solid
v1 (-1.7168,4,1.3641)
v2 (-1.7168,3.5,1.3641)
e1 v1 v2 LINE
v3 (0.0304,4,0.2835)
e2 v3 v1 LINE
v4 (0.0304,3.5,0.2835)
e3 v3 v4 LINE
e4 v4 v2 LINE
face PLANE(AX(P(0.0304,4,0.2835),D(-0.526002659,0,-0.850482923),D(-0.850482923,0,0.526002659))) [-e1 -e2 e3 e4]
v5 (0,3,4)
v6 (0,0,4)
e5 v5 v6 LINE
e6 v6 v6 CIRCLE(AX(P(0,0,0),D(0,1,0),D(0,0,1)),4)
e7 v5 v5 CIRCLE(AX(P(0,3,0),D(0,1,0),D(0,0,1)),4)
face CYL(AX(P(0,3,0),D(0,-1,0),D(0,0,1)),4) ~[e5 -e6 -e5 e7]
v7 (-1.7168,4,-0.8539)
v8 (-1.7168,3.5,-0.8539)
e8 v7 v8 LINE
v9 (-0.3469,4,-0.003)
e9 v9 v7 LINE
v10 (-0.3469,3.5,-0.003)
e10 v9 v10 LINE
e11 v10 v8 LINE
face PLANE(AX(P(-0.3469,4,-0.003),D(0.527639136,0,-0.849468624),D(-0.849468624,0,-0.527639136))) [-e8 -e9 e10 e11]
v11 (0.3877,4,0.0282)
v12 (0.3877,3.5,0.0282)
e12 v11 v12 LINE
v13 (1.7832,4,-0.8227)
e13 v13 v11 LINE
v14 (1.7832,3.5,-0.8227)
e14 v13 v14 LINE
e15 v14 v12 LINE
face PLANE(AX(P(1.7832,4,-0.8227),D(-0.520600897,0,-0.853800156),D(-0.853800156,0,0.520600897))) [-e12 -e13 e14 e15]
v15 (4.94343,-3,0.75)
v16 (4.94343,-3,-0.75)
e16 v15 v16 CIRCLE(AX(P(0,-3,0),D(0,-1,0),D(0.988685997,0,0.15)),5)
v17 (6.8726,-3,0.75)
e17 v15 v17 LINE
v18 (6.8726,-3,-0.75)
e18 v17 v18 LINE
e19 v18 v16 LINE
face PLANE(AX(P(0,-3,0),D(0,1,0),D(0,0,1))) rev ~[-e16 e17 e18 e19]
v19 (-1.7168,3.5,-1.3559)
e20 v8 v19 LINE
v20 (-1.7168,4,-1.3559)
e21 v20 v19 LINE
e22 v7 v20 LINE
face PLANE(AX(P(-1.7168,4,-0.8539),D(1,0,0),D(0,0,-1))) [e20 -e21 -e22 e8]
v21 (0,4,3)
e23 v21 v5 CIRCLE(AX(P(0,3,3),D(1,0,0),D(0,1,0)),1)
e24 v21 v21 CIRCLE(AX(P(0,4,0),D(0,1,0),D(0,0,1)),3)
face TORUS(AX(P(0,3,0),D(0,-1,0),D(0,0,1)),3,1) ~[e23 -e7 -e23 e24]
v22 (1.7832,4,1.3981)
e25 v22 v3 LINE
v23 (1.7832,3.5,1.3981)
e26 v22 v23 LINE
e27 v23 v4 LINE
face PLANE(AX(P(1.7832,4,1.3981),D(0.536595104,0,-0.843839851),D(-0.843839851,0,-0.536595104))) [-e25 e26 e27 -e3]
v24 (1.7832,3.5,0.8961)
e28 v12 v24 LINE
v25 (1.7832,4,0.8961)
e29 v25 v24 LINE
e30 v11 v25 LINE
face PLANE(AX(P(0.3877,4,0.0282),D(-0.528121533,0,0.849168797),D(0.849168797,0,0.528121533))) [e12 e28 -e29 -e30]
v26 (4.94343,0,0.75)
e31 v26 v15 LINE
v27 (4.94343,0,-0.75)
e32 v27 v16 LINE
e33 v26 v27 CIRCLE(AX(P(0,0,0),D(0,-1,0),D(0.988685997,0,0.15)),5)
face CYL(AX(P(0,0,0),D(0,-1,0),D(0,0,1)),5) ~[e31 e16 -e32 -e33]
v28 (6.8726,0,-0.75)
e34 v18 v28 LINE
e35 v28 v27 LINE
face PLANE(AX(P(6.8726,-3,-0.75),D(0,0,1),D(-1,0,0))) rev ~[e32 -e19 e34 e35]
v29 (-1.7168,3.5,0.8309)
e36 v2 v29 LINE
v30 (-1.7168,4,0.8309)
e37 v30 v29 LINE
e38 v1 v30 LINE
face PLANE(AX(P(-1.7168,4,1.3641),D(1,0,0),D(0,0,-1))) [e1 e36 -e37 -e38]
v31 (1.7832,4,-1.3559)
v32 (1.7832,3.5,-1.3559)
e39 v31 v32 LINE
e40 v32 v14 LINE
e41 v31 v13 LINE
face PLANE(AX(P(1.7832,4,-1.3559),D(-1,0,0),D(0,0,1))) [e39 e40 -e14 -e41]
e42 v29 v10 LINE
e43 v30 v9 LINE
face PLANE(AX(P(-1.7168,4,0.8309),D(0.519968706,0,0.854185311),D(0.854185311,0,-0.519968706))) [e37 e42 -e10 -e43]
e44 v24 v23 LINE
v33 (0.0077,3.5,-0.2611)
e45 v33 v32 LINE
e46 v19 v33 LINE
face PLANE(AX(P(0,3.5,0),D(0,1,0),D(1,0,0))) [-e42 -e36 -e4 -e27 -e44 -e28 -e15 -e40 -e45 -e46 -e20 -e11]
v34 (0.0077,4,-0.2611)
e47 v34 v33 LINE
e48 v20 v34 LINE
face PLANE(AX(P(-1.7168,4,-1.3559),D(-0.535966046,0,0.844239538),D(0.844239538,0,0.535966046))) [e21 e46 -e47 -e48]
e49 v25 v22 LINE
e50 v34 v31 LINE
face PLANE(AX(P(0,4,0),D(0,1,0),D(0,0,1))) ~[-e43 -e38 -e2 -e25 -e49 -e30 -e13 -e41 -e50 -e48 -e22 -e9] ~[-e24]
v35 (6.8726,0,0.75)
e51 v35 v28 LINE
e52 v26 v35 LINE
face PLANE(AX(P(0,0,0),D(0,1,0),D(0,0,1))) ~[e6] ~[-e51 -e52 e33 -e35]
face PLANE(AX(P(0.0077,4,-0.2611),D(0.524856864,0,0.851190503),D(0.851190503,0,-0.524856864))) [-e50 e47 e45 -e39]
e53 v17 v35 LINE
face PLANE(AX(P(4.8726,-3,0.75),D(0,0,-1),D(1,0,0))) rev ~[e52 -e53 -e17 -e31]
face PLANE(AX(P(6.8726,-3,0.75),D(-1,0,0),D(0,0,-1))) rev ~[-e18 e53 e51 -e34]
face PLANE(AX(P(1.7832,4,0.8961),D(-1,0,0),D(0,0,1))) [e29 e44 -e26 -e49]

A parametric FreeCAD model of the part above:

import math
import FreeCAD as App
import Part
import Sketcher
Q = App.Units.Quantity


def add_polygon(sketch, points):
    """Adds a closed chain of lines whose ends are joined by coincident constraints."""
    first, n = sketch.GeometryCount, len(points)
    for a, b in zip(points, points[1:] + points[:1]):
        sketch.addGeometry(Part.LineSegment(App.Vector(*a, 0), App.Vector(*b, 0)), False)
    for i in range(n):
        sketch.addConstraint(Sketcher.Constraint("Coincident", first + i, 2, first + (i + 1) % n, 1))

doc = App.newDocument("Part")
params = doc.addObject("Spreadsheet::Sheet", "Params")
for row, (alias, value) in enumerate([
    ("sketch1_radius", "1 mm"),
    ("sketch1_width", "3 mm"),
    ("sketch1_height", "1 mm"),
    ("revolution_angle", "360 deg"),
    ("pocket1_length", "0.5 mm"),
    ("sketch3_width", "2 mm"),
    ("sketch3_height", "1.5 mm"),
    ("pad1_length", "3 mm"),
], start=1):
    params.set(f"A{row}", alias)
    params.set(f"B{row}", "=" + value)
    params.setAlias(f"B{row}", alias)

body = doc.addObject("PartDesign::Body", "Body")

# Sketch on YZ plane
sketch1 = doc.addObject("Sketcher::SketchObject", "Sketch")
body.addObject(sketch1)
sketch1.AttachmentSupport = (doc.YZ_Plane, [""])
sketch1.MapMode = "FlatFace"
sketch1.addGeometry([
    Part.LineSegment(App.Vector(-3, 0, 0), App.Vector(4, 0, 0)),  # 0
    Part.LineSegment(App.Vector(4, 0, 0), App.Vector(4, 3, 0)),  # 1
    Part.ArcOfCircle(Part.Circle(App.Vector(3, 3, 0), App.Vector(0, 0, 1), 1), math.radians(0), math.radians(90)),  # 2
    Part.LineSegment(App.Vector(3, 4, 0), App.Vector(0, 4, 0)),  # 3
    Part.LineSegment(App.Vector(0, 4, 0), App.Vector(0, 5, 0)),  # 4
    Part.LineSegment(App.Vector(0, 5, 0), App.Vector(-3, 5, 0)),  # 5
    Part.LineSegment(App.Vector(-3, 5, 0), App.Vector(-3, 0, 0)),  # 6
], False)
sketch1.addConstraint([
    Sketcher.Constraint("Coincident", 0, 2, 1, 1),
    Sketcher.Constraint("Tangent", 1, 2, 2, 1),
    Sketcher.Constraint("Tangent", 2, 2, 3, 1),
    Sketcher.Constraint("Coincident", 3, 2, 4, 1),
    Sketcher.Constraint("Coincident", 4, 2, 5, 1),
    Sketcher.Constraint("Coincident", 5, 2, 6, 1),
    Sketcher.Constraint("Coincident", 6, 2, 0, 1),
    Sketcher.Constraint("Horizontal", 0),
    Sketcher.Constraint("Vertical", 1),
    Sketcher.Constraint("Horizontal", 3),
    Sketcher.Constraint("Vertical", 4),
    Sketcher.Constraint("Horizontal", 5),
    Sketcher.Constraint("Vertical", 6),
    Sketcher.Constraint("PointOnObject", 0, 2, -1),
    Sketcher.Constraint("PointOnObject", 3, 2, -2),
    Sketcher.Constraint("Equal", 3, 5),
    Sketcher.Constraint("Equal", 5, 1),
    Sketcher.Constraint("Radius", 2, 1.0),
    Sketcher.Constraint("DistanceX", 3, 2, 3, 1, 3.0),
    Sketcher.Constraint("DistanceY", 4, 1, 4, 2, 1.0),
])
sketch1.setExpression("Constraints[17]", "Params.sketch1_radius")
sketch1.setExpression("Constraints[18]", "Params.sketch1_width")
sketch1.setExpression("Constraints[19]", "Params.sketch1_height")
revolution = doc.addObject("PartDesign::Revolution", "Revolution")
body.addObject(revolution)
revolution.Profile = sketch1
revolution.ReferenceAxis = (sketch1, ["H_Axis"])
revolution.setExpression("Angle", "Params.revolution_angle")

# Sketch on XZ plane
sketch2 = doc.addObject("Sketcher::SketchObject", "Sketch001")
body.addObject(sketch2)
sketch2.AttachmentSupport = (doc.XZ_Plane, [""])
sketch2.MapMode = "FlatFace"
sketch2.AttachmentOffset = App.Placement(App.Vector(0, 0, -4), App.Rotation())
add_polygon(sketch2, [(1.7832, -0.8227), (1.7832, -1.3559), (0.0077, -0.2611), (-1.7168, -1.3559), (-1.7168, -0.8539), (-0.3469, -0.003), (-1.7168, 0.8309), (-1.7168, 1.3641), (0.0304, 0.2835), (1.7832, 1.3981), (1.7832, 0.8961), (0.3877, 0.0282)])  # lines 0-11
sketch2.addConstraint([
    Sketcher.Constraint("Vertical", 0),
    Sketcher.Constraint("Vertical", 3),
    Sketcher.Constraint("Vertical", 6),
    Sketcher.Constraint("Vertical", 9),
    Sketcher.Constraint("Horizontal", 0, 2, 2, 2),
    Sketcher.Constraint("Vertical", 3, 2, 5, 2),
    Sketcher.Constraint("Vertical", 0, 2, 8, 2),
    Sketcher.Constraint("Equal", 0, 6),
    Sketcher.Constraint("Equal", 3, 9),
    Sketcher.Constraint("Angle", 2, Q("-147.5905 deg")),
    Sketcher.Constraint("Angle", 5, Q("148.6698 deg")),
    Sketcher.Constraint("DistanceX", 2, 2, 0, 2, 3.5),
    Sketcher.Constraint("DistanceY", 3, 1, 3, 2, 0.502),
    Sketcher.Constraint("DistanceX", 3, 2, 4, 2, 1.37),
    Sketcher.Constraint("DistanceY", 2, 2, 6, 2, 2.72),
    Sketcher.Constraint("DistanceX", 1, 2, 10, 2, 0.38),
    Sketcher.Constraint("DistanceY", 10, 2, 8, 2, 1.37),
    Sketcher.Constraint("Distance", 1, 2.086),
    Sketcher.Constraint("DistanceY", 0, 2, 0, 1, 0.5332),
    Sketcher.Constraint("DistanceY", 0, 2, -1, 1, 1.356),
    Sketcher.Constraint("DistanceX", 4, 2, -1, 1, 0.347),
    Sketcher.Constraint("DistanceY", -1, 1, 8, 2, 1.398),
    Sketcher.Constraint("Distance", 7, 2.0544),
    Sketcher.Constraint("Distance", 8, 2.0772),
])
pocket1 = doc.addObject("PartDesign::Pocket", "Pocket")
body.addObject(pocket1)
pocket1.Profile = sketch2
pocket1.setExpression("Length", "Params.pocket1_length")
pocket1.Reversed = True

# Sketch on XZ plane
sketch3 = doc.addObject("Sketcher::SketchObject", "Sketch002")
body.addObject(sketch3)
sketch3.AttachmentSupport = (doc.XZ_Plane, [""])
sketch3.MapMode = "FlatFace"
sketch3.AttachmentOffset = App.Placement(App.Vector(0, 0, 3), App.Rotation())
add_polygon(sketch3, [(6.8726, 0.75), (4.8726, 0.75), (4.8726, -0.75), (6.8726, -0.75)])  # lines 0-3
sketch3.addConstraint([
    Sketcher.Constraint("Horizontal", 0),
    Sketcher.Constraint("Vertical", 1),
    Sketcher.Constraint("Horizontal", 2),
    Sketcher.Constraint("Vertical", 3),
    Sketcher.Constraint("DistanceX", 0, 2, 0, 1, 2.0),
    Sketcher.Constraint("DistanceY", 1, 2, 1, 1, 1.5),
    Sketcher.Constraint("DistanceY", -1, 1, 0, 2, 0.75),
    Sketcher.Constraint("DistanceX", -1, 1, 0, 2, 4.8726),
])
sketch3.setExpression("Constraints[8]", "Params.sketch3_width")
sketch3.setExpression("Constraints[9]", "Params.sketch3_height")
pad1 = doc.addObject("PartDesign::Pad", "Pad")
body.addObject(pad1)
pad1.Profile = sketch3
pad1.setExpression("Length", "Params.pad1_length")
pad1.Reversed = True

doc.recompute()
